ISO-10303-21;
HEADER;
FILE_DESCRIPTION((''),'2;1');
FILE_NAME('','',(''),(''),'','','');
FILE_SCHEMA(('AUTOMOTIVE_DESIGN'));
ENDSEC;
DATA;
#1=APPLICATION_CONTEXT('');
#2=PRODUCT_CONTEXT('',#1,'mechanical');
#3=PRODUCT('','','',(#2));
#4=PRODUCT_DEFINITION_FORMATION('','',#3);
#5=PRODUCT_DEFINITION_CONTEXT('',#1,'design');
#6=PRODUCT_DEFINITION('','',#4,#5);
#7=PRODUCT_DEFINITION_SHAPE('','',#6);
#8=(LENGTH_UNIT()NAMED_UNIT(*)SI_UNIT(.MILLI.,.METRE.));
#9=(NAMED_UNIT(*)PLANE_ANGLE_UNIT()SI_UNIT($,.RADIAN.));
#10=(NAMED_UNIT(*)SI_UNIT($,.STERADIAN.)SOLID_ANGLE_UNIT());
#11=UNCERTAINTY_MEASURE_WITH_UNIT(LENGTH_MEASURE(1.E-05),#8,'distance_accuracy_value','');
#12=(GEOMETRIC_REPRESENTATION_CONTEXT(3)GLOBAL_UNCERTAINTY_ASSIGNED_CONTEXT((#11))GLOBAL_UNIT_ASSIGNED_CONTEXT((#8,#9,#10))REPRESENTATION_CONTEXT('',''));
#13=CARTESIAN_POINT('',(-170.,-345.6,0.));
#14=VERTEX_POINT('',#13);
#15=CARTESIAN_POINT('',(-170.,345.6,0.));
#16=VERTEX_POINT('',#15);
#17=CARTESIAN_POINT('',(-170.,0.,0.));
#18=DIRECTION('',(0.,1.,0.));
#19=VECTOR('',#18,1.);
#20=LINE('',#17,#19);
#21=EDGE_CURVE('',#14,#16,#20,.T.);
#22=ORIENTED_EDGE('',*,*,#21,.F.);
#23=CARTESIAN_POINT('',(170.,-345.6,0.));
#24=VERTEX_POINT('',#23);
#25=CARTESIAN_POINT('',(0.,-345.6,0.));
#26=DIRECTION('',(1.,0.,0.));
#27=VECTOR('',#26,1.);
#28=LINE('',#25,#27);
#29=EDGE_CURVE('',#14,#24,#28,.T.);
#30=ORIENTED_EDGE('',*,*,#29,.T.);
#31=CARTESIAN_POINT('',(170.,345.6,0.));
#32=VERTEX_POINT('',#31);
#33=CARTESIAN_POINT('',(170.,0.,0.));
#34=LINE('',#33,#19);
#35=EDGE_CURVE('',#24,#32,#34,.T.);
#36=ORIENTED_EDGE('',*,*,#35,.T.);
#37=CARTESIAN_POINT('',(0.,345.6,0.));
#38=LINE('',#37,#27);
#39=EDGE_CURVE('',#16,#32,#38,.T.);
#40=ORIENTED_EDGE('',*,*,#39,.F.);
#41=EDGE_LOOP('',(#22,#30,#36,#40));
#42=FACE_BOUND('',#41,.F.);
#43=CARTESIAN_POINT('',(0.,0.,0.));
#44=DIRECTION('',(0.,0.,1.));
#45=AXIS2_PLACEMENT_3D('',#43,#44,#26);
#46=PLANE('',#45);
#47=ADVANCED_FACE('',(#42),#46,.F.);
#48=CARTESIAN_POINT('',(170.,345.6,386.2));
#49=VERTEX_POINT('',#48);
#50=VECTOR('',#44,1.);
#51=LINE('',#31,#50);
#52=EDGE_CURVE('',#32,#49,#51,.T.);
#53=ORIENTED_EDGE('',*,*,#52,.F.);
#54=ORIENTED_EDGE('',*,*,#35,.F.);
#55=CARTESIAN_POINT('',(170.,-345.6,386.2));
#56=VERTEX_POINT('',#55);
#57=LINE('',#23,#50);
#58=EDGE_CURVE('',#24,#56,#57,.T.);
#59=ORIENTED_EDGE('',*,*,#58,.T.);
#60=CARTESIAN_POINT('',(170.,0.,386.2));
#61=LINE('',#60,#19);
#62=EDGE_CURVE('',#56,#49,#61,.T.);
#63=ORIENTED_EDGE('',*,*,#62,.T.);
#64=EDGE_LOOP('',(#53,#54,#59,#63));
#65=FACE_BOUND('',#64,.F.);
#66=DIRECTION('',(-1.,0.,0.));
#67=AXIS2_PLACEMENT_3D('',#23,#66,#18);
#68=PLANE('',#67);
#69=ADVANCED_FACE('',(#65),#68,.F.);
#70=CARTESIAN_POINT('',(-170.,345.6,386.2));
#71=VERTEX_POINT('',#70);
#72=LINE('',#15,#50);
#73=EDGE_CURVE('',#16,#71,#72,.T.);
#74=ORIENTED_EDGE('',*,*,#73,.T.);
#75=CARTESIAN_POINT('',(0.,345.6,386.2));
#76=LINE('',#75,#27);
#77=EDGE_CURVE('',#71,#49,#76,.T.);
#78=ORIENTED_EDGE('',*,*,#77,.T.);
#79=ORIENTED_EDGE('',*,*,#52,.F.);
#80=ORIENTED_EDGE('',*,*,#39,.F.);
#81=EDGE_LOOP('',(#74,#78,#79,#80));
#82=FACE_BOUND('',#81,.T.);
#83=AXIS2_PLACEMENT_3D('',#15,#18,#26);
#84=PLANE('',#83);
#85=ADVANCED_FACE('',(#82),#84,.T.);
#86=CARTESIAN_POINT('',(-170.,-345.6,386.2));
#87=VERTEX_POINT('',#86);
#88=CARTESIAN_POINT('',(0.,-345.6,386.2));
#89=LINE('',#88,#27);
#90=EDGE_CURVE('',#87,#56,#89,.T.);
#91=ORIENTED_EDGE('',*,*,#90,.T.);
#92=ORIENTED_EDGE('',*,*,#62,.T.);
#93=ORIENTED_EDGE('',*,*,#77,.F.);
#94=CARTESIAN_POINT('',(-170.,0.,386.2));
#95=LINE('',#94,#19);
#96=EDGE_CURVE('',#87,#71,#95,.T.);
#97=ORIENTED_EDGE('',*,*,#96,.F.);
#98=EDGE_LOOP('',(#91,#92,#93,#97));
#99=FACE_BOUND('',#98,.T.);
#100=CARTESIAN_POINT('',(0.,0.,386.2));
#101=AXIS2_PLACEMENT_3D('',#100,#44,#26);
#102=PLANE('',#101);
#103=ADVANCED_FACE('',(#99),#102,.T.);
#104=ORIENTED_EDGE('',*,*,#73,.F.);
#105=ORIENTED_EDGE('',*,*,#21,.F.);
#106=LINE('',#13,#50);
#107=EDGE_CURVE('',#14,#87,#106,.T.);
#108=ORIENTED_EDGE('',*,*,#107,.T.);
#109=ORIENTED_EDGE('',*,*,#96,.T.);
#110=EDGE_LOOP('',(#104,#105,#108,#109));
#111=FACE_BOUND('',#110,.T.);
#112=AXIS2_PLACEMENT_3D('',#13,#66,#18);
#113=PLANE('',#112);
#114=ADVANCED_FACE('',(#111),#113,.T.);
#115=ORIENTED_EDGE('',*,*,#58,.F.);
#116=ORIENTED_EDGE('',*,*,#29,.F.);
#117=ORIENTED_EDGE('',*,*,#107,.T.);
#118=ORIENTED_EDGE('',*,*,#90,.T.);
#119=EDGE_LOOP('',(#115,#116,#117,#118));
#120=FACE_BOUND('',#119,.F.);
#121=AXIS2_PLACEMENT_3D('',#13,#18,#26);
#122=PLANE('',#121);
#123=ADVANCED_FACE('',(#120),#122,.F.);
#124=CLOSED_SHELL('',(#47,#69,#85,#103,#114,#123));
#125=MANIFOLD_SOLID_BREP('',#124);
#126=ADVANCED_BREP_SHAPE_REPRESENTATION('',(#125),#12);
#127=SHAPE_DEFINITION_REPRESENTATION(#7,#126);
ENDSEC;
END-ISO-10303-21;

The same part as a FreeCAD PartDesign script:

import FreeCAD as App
import Part
import Sketcher
from FreeCAD import Vector


def add_polygon(sketch, points):
    """Adds a closed chain of lines whose ends are joined by coincident constraints."""
    first, n = sketch.GeometryCount, len(points)
    for a, b in zip(points, points[1:] + points[:1]):
        sketch.addGeometry(Part.LineSegment(App.Vector(*a, 0), App.Vector(*b, 0)), False)
    for i in range(n):
        sketch.addConstraint(Sketcher.Constraint("Coincident", first + i, 2, first + (i + 1) % n, 1))

doc = App.newDocument("Part")
body = doc.addObject("PartDesign::Body", "Body")

sketch1 = body.newObject("Sketcher::SketchObject", "Sketch")
sketch1.AttachmentSupport = (doc.getObject("XY_Plane"), [""])
sketch1.MapMode = "FlatFace"
add_polygon(sketch1, [(-170, 346), (-170, -346), (170, -346), (170, 346)])
sketch1.addConstraint([
    Sketcher.Constraint("Vertical", 0),
    Sketcher.Constraint("Horizontal", 1),
    Sketcher.Constraint("Vertical", 2),
    Sketcher.Constraint("Horizontal", 3),
    Sketcher.Constraint("Symmetric", 0, 2, 2, 2, -1, 1),
    Sketcher.Constraint("DistanceX", 1, 1, 1, 2, 340.0),
    Sketcher.Constraint("DistanceY", 0, 2, 0, 1, 691.2),
])
pad1 = body.newObject("PartDesign::Pad", "Pad")
pad1.Profile = sketch1
pad1.Length = 386.2

sketch2 = body.newObject("Sketcher::SketchObject", "Sketch001")
sketch2.AttachmentSupport = (doc.getObject("YZ_Plane"), [""])
sketch2.MapMode = "FlatFace"
sketch2.AttachmentOffset = App.Placement(Vector(0, 0, 170), App.Rotation())
sketch2.addGeometry(Part.Circle(Vector(-223, 294, 0), Vector(0, 0, 1), 17), False)
sketch2.addGeometry(Part.Circle(Vector(-223, 122, 0), Vector(0, 0, 1), 62), False)
sketch2.addGeometry(Part.Circle(Vector(72, 193, 0), Vector(0, 0, 1), 127), False)
add_polygon(sketch2, [(266, 151), (266, 20), (326, 20), (326, 151)])
sketch2.addConstraint([
    Sketcher.Constraint("Vertical", 3),
    Sketcher.Constraint("Horizontal", 4),
    Sketcher.Constraint("Vertical", 5),
    Sketcher.Constraint("Horizontal", 6),
    Sketcher.Constraint("Vertical", 0, 3, 1, 3),
    Sketcher.Constraint("Diameter", 1, 123.0),
    Sketcher.Constraint("Diameter", 2, 254.0),
    Sketcher.Constraint("Diameter", 0, 34.8),
    Sketcher.Constraint("DistanceX", 4, 1, 4, 2, 60.0),
    Sketcher.Constraint("DistanceY", 3, 2, 3, 1, 131.0),
    Sketcher.Constraint("DistanceY", -1, 1, 3, 2, 20.0),
    Sketcher.Constraint("DistanceX", 0, 3, -1, 1, 223.1),
    Sketcher.Constraint("DistanceY", -1, 1, 0, 3, 294.3),
    Sketcher.Constraint("DistanceY", -1, 1, 1, 3, 122.5),
    Sketcher.Constraint("DistanceX", -1, 1, 2, 3, 72.5),
    Sketcher.Constraint("DistanceY", -1, 1, 2, 3, 193.1),
    Sketcher.Constraint("DistanceX", -1, 1, 3, 2, 265.6),
])
pad2 = body.newObject("PartDesign::Pad", "Pad001")
pad2.Profile = sketch2
pad2.Length = 10
pad2.Reversed = True

doc.recompute()
